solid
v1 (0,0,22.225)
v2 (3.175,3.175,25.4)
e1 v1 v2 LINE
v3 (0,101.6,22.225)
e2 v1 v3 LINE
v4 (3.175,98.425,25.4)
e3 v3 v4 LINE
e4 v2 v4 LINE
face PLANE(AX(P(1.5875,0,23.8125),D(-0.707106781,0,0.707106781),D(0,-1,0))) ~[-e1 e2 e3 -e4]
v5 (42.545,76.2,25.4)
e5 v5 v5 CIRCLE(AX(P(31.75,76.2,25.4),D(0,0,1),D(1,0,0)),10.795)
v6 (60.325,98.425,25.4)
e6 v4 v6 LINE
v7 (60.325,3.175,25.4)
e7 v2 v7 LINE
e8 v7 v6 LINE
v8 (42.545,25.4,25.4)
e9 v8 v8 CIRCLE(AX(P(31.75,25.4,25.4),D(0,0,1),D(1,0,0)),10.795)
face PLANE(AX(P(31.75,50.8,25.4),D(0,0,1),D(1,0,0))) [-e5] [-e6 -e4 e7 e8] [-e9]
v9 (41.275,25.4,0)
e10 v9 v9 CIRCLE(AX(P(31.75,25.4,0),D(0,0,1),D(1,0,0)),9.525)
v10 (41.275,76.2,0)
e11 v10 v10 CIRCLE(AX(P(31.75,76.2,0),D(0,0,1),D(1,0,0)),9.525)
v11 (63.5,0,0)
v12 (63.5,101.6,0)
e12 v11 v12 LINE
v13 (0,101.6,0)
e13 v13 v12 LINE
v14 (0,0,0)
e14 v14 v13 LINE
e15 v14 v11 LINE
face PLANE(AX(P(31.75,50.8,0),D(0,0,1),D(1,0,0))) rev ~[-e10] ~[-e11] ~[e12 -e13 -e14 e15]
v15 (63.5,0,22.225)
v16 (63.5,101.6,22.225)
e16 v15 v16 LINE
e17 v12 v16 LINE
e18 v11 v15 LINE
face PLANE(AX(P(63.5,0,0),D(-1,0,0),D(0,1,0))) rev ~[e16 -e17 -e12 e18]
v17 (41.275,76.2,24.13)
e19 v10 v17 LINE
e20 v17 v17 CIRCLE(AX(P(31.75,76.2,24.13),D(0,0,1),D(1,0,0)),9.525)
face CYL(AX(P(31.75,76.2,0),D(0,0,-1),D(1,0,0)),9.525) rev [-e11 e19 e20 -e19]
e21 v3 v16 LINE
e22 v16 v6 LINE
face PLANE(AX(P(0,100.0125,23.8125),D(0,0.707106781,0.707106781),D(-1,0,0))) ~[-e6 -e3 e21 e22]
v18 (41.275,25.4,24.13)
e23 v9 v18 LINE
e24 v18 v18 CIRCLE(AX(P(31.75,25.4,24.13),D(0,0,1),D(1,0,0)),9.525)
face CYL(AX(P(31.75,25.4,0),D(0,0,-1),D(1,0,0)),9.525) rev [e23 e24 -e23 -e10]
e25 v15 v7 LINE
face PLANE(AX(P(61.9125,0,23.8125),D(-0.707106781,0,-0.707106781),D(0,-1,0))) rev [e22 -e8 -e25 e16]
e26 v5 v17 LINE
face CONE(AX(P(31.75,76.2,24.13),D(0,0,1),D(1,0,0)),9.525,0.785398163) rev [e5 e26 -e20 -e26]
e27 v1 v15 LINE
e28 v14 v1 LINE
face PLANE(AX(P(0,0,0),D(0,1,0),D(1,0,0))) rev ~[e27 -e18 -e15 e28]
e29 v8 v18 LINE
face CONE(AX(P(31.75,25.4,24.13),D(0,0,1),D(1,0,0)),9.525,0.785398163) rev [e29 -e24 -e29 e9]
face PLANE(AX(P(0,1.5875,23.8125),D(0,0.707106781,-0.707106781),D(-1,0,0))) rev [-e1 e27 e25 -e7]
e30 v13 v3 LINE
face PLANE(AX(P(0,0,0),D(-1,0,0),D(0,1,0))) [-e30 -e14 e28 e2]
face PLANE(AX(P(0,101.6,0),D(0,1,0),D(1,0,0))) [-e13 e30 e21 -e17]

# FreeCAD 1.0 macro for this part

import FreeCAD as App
import Part
import Sketcher

V = App.Vector
Q = App.Units.Quantity


def edges_at(feature, points):
    """Names of the edges that pass closest to the given points."""
    edges = feature.Shape.Edges
    near = lambda p: min(range(len(edges)), key=lambda i: edges[i].distToShape(Part.Vertex(*p))[0])
    return sorted({f"Edge{near(p) + 1}" for p in points})


def add_polygon(sketch, points):
    """Adds a closed chain of lines whose ends are joined by coincident constraints."""
    first, n = sketch.GeometryCount, len(points)
    for a, b in zip(points, points[1:] + points[:1]):
        sketch.addGeometry(Part.LineSegment(App.Vector(*a, 0), App.Vector(*b, 0)), False)
    for i in range(n):
        sketch.addConstraint(Sketcher.Constraint("Coincident", first + i, 2, first + (i + 1) % n, 1))

doc = App.newDocument("Part")
body = doc.addObject("PartDesign::Body", "Body")

# Sketch on XY plane
sketch1 = body.newObject("Sketcher::SketchObject", "Sketch")
sketch1.AttachmentSupport = (doc.getObject("XY_Plane"), [""])
sketch1.MapMode = "FlatFace"
add_polygon(sketch1, [(0, 101.6), (0, 0), (63.5, 0), (63.5, 101.6)])  # lines 0-3
sketch1.addGeometry(Part.Circle(V(31.75, 25.4, 0), V(0, 0, 1), 9.525), False)  # 4
sketch1.addGeometry(Part.Circle(V(31.75, 76.2, 0), V(0, 0, 1), 9.525), False)  # 5
sketch1.addConstraint([
    Sketcher.Constraint("Vertical", 0),
    Sketcher.Constraint("Horizontal", 1),
    Sketcher.Constraint("Vertical", 2),
    Sketcher.Constraint("Horizontal", 3),
    Sketcher.Constraint("Coincident", 0, 2, -1, 1),
    Sketcher.Constraint("Equal", 4, 5),
    Sketcher.Constraint("Vertical", 4, 3, 5, 3),
    Sketcher.Constraint("Diameter", 4, Q("0.75 in")),
    Sketcher.Constraint("DistanceY", 0, 2, 0, 1, Q("4 in")),
    Sketcher.Constraint("DistanceX", 1, 1, 1, 2, Q("2.5 in")),
    Sketcher.Constraint("DistanceY", -1, 1, 4, 3, Q("1 in")),
    Sketcher.Constraint("DistanceY", -1, 1, 5, 3, Q("3 in")),
    Sketcher.Constraint("DistanceX", -1, 1, 4, 3, Q("1.25 in")),
])
pad1 = body.newObject("PartDesign::Pad", "Pad")
pad1.Profile = sketch1
pad1.Length = Q("1 in")
doc.recompute()

chamfer = body.newObject("PartDesign::Chamfer", "Chamfer")
chamfer.Base = (pad1, edges_at(pad1, [
    (63.5, 50.8, 25.4),
    (31.75, 101.6, 25.4),
    (0, 50.8, 25.4),
    (31.75, 0, 25.4),
]))
chamfer.Size = Q("0.125 in")
doc.recompute()

chamfer2 = body.newObject("PartDesign::Chamfer", "Chamfer001")
chamfer2.Base = (chamfer, edges_at(chamfer, [(22.225, 76.2, 25.4), (22.225, 25.4, 25.4)]))
chamfer2.Size = Q("0.05 in")

doc.recompute()
